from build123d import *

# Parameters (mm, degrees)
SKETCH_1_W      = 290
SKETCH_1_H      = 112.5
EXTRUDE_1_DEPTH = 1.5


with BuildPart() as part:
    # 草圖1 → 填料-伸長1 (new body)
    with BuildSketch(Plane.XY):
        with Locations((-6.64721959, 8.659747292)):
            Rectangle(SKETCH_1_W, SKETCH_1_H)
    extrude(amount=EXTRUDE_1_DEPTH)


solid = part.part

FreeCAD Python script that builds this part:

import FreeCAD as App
import Part
import Sketcher

V = App.Vector
Q = App.Units.Quantity


def add_polygon(sketch, points):
    """Adds a closed chain of lines whose ends are joined by coincident constraints."""
    first, n = sketch.GeometryCount, len(points)
    for a, b in zip(points, points[1:] + points[:1]):
        sketch.addGeometry(Part.LineSegment(App.Vector(*a, 0), App.Vector(*b, 0)), False)
    for i in range(n):
        sketch.addConstraint(Sketcher.Constraint("Coincident", first + i, 2, first + (i + 1) % n, 1))

doc = App.newDocument("Part")
body = doc.addObject("PartDesign::Body", "Body")

sketch1 = doc.addObject("Sketcher::SketchObject", "Sketch")
body.addObject(sketch1)
sketch1.AttachmentSupport = (doc.XY_Plane, [""])
sketch1.MapMode = "FlatFace"
add_polygon(sketch1, [(-152, 65), (-152, -48), (138, -48), (138, 65)])
sketch1.addConstraint(Sketcher.Constraint("Vertical", 0))
sketch1.addConstraint(Sketcher.Constraint("Horizontal", 1))
sketch1.addConstraint(Sketcher.Constraint("Vertical", 2))
sketch1.addConstraint(Sketcher.Constraint("Horizontal", 3))
sketch1.addConstraint(Sketcher.Constraint("DistanceX", 1, 1, 1, 2, Q("290 mm")))
sketch1.addConstraint(Sketcher.Constraint("DistanceY", 0, 2, 0, 1, Q("112.5 mm")))
sketch1.addConstraint(Sketcher.Constraint("DistanceX", 0, 2, -1, 1, Q("151.64722 mm")))
sketch1.addConstraint(Sketcher.Constraint("DistanceY", 0, 2, -1, 1, Q("47.590253 mm")))
pad1 = doc.addObject("PartDesign::Pad", "Pad")
body.addObject(pad1)
pad1.Profile = sketch1
pad1.Length = 1.5

doc.recompute()
